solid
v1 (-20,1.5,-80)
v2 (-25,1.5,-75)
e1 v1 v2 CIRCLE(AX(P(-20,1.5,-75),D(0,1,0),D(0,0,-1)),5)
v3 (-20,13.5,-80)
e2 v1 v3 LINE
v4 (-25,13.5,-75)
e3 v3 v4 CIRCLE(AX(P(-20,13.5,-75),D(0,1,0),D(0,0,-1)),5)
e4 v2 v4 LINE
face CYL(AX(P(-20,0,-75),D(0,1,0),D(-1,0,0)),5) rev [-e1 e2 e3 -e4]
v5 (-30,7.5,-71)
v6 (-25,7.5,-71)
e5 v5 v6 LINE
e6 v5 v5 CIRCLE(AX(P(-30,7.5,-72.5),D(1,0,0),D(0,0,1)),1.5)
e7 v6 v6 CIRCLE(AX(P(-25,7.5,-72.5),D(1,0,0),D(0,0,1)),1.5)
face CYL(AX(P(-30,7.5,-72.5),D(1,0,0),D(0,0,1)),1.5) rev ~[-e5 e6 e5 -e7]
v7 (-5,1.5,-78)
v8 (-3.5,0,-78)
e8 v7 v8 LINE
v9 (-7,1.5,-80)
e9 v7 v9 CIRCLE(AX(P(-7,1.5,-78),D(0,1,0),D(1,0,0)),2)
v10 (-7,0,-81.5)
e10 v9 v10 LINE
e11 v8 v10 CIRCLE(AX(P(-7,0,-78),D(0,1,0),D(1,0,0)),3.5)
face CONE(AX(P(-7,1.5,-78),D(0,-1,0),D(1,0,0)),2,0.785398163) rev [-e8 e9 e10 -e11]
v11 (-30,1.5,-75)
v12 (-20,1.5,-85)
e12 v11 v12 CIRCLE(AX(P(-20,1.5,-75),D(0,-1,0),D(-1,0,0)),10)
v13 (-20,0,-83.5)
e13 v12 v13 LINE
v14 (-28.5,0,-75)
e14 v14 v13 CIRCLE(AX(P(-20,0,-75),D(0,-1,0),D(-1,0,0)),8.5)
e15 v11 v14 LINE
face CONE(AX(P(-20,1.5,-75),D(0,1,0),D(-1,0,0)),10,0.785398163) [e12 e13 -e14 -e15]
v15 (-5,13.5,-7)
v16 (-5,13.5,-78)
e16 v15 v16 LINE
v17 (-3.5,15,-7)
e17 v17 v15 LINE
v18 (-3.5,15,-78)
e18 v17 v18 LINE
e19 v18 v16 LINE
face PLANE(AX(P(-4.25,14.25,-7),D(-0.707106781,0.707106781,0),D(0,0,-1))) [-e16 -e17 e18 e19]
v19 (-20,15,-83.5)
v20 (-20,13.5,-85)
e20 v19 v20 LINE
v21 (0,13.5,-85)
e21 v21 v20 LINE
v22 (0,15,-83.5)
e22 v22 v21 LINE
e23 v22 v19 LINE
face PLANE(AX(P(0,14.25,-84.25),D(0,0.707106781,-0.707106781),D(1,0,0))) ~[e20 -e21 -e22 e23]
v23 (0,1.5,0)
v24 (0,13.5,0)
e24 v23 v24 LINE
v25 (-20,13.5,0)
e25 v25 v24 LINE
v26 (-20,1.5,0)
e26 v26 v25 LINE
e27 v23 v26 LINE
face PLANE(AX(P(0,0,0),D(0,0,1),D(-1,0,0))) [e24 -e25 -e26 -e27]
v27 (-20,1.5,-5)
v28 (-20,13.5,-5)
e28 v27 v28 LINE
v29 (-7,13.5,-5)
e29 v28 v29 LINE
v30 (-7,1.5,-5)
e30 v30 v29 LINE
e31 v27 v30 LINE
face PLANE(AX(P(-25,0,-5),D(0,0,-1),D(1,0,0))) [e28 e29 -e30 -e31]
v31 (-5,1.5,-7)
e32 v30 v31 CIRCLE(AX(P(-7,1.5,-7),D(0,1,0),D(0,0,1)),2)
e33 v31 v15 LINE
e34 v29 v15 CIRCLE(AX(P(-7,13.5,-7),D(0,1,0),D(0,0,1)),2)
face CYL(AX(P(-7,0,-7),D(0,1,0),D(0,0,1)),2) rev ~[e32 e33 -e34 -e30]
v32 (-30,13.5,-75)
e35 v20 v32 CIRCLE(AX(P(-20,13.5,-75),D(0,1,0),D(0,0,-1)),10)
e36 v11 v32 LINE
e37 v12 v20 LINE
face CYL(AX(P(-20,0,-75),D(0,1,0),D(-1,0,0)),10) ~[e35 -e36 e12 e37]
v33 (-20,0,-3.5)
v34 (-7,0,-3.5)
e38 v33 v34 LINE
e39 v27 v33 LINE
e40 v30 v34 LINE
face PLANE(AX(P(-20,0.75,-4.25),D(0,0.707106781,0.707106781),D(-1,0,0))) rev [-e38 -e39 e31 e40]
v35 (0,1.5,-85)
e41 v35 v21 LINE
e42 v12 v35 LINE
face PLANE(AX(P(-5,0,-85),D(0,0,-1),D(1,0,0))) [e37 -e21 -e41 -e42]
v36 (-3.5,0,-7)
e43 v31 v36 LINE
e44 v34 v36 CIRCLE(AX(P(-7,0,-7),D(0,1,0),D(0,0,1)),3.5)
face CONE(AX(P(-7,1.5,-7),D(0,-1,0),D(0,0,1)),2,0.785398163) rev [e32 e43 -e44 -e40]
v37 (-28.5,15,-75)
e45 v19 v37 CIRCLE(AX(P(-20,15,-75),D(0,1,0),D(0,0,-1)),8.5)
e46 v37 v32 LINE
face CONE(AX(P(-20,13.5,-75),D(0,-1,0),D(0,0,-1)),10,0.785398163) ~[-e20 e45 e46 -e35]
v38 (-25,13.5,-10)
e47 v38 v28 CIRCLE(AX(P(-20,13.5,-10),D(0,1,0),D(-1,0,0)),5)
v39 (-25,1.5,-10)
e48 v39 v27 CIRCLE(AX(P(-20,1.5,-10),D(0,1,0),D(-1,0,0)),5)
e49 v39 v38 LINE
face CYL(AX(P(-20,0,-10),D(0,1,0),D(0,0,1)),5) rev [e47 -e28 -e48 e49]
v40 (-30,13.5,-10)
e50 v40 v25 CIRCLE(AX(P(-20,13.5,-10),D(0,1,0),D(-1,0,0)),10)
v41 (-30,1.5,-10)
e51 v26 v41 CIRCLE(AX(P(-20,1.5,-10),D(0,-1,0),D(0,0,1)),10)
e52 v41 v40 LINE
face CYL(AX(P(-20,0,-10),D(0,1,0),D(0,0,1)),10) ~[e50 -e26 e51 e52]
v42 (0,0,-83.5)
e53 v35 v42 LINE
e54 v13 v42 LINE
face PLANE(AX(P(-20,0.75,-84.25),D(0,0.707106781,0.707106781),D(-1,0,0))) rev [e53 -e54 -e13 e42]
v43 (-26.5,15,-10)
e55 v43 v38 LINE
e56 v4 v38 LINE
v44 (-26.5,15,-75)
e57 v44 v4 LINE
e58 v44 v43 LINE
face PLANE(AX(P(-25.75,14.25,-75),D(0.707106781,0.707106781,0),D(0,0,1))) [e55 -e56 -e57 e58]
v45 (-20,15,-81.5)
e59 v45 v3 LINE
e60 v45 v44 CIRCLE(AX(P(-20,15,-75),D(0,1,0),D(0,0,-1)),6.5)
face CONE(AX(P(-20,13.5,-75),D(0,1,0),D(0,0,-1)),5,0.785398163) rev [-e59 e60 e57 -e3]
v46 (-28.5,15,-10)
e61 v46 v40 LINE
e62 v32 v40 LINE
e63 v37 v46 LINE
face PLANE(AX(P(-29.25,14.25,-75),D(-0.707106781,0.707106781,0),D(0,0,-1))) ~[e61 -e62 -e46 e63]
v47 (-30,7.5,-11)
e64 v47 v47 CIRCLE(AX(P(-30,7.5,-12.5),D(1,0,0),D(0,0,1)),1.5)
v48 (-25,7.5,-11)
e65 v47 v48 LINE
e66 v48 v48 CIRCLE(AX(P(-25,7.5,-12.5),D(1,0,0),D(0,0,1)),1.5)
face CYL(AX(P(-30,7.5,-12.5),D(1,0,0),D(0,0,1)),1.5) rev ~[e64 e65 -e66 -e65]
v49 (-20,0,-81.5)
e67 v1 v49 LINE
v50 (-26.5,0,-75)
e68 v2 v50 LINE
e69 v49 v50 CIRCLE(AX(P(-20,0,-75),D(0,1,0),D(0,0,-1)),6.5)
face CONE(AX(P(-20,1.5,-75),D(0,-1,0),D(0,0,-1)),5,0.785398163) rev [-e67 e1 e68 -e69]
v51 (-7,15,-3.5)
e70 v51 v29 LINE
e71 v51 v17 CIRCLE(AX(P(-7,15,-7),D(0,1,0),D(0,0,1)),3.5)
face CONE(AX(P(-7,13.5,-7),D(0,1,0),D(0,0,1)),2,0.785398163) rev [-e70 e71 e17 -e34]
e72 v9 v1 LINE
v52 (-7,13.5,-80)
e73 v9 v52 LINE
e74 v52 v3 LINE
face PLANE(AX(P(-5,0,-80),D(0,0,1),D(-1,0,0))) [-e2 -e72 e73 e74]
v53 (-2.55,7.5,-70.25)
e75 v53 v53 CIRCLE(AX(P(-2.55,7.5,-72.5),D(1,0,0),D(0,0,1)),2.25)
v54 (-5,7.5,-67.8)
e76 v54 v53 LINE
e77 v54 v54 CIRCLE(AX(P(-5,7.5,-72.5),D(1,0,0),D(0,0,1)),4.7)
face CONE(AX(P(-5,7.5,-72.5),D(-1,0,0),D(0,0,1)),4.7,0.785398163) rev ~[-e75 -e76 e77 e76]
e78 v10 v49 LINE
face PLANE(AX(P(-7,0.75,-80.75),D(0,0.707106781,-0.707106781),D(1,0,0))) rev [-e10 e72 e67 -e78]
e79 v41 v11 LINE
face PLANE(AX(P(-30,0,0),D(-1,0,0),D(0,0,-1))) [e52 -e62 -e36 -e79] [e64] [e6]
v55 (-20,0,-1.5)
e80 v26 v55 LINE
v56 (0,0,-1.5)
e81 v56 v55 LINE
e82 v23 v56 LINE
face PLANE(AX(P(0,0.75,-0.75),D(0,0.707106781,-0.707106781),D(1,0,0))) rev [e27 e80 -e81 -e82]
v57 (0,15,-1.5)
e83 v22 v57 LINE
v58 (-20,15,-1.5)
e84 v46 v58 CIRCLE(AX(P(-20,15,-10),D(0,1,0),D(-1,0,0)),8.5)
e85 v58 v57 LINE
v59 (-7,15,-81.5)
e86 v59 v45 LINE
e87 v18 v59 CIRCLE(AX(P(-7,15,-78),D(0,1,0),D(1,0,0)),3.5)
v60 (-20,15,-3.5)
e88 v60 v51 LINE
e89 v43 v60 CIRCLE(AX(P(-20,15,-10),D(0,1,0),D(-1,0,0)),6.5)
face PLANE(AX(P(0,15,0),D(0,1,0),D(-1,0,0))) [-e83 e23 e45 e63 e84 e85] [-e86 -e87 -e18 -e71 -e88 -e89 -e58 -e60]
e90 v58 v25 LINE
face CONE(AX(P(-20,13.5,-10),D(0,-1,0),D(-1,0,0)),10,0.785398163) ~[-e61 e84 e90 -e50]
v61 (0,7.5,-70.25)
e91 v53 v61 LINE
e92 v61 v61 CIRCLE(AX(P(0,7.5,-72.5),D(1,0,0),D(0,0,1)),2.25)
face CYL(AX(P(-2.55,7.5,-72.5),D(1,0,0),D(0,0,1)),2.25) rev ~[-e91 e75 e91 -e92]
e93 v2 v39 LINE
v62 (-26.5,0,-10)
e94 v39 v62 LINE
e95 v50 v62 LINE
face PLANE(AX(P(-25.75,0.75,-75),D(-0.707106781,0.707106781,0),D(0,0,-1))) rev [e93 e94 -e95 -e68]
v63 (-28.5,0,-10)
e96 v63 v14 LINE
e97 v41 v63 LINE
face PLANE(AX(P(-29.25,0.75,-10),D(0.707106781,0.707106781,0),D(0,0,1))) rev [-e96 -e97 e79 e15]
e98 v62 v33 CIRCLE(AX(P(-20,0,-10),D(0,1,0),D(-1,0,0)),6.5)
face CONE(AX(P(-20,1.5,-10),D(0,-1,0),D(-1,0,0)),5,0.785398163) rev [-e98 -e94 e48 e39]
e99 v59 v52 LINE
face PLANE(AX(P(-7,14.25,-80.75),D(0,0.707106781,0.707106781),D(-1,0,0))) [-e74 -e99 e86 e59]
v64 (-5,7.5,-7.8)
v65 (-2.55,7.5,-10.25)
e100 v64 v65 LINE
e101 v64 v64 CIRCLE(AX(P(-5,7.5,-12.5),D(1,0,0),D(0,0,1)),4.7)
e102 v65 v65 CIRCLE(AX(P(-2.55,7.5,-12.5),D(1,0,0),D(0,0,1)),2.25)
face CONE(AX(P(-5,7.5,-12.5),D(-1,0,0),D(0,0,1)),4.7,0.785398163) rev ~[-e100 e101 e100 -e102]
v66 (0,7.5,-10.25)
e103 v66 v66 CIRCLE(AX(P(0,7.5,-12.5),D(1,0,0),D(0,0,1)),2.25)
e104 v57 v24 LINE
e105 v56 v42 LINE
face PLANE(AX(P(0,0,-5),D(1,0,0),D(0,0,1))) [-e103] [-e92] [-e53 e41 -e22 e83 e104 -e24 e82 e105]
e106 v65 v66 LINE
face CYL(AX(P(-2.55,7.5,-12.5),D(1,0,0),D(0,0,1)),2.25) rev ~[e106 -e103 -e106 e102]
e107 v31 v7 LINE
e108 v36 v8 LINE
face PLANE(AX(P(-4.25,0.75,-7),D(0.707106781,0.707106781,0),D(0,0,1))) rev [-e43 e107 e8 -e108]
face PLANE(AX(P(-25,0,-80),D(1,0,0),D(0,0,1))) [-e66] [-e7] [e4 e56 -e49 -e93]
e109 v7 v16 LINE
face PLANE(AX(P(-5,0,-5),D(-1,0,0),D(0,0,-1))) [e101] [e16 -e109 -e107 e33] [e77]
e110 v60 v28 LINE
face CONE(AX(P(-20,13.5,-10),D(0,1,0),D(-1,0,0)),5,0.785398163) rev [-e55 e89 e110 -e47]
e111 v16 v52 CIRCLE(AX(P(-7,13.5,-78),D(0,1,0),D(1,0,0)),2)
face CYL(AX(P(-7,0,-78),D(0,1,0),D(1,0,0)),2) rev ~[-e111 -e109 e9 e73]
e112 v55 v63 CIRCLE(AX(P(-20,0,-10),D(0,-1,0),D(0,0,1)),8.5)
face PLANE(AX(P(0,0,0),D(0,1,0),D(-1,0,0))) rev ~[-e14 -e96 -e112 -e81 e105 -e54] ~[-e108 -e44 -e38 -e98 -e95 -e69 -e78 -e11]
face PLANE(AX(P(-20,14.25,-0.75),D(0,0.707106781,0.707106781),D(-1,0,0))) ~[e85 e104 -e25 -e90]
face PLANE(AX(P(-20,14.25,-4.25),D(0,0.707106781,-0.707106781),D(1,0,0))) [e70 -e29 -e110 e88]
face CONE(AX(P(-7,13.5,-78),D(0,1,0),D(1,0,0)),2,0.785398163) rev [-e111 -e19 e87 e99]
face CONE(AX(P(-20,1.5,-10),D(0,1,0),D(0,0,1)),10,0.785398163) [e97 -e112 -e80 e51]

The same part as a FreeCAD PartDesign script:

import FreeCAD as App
import Part
import Sketcher

V = App.Vector


def edges_at(feature, points):
    """Names of the edges that pass closest to the given points."""
    edges = feature.Shape.Edges
    near = lambda p: min(range(len(edges)), key=lambda i: edges[i].distToShape(Part.Vertex(*p))[0])
    return sorted({f"Edge{near(p) + 1}" for p in points})

doc = App.newDocument("Part")
params = doc.addObject("Spreadsheet::Sheet", "Params")
for row, (alias, value) in enumerate([
    ("sketch1_width", "30 mm"),
    ("sketch1_height", "85 mm"),
    ("pad1_length", "15 mm"),
    ("fillet_radius", "10 mm"),
    ("fillet2_radius", "5 mm"),
    ("fillet3_radius", "2 mm"),
    ("sketch2_diameter", "4.5 mm"),
    ("hole_diameter", "4.5 mm"),
    ("hole_depth", "5 mm"),
    ("hole_csink_diameter", "9.4 mm"),
    ("sketch3_diameter", "3 mm"),
    ("hole2_diameter", "3 mm"),
    ("hole2_depth", "25 mm"),
    ("chamfer_size", "1.5 mm"),
    ("chamfer2_size", "1.5 mm"),
], start=1):
    params.set(f"A{row}", alias)
    params.set(f"B{row}", "=" + value)
    params.setAlias(f"B{row}", alias)

body = doc.addObject("PartDesign::Body", "Body")

sketch1 = body.newObject("Sketcher::SketchObject", "Sketch")
sketch1.AttachmentSupport = (doc.getObject("XZ_Plane"), [""])
sketch1.MapMode = "FlatFace"
sketch1.addGeometry([
    Part.LineSegment(V(0, 0, 0), V(0, -85, 0)),
    Part.LineSegment(V(0, -85, 0), V(-30, -85, 0)),
    Part.LineSegment(V(-30, -85, 0), V(-30, 0, 0)),
    Part.LineSegment(V(-30, 0, 0), V(0, 0, 0)),
    Part.LineSegment(V(-5, -5, 0), V(-25, -5, 0)),
    Part.LineSegment(V(-25, -5, 0), V(-25, -80, 0)),
    Part.LineSegment(V(-25, -80, 0), V(-5, -80, 0)),
    Part.LineSegment(V(-5, -80, 0), V(-5, -5, 0)),
], False)
sketch1.addConstraint([
    Sketcher.Constraint("Coincident", 0, 2, 1, 1),
    Sketcher.Constraint("Coincident", 1, 2, 2, 1),
    Sketcher.Constraint("Coincident", 2, 2, 3, 1),
    Sketcher.Constraint("Coincident", 3, 2, 0, 1),
    Sketcher.Constraint("Coincident", 4, 2, 5, 1),
    Sketcher.Constraint("Coincident", 5, 2, 6, 1),
    Sketcher.Constraint("Coincident", 6, 2, 7, 1),
    Sketcher.Constraint("Coincident", 7, 2, 4, 1),
    Sketcher.Constraint("Vertical", 0),
    Sketcher.Constraint("Horizontal", 1),
    Sketcher.Constraint("Vertical", 2),
    Sketcher.Constraint("Horizontal", 3),
    Sketcher.Constraint("Horizontal", 4),
    Sketcher.Constraint("Vertical", 5),
    Sketcher.Constraint("Horizontal", 6),
    Sketcher.Constraint("Vertical", 7),
    Sketcher.Constraint("Coincident", 3, 2, -1, 1),
    Sketcher.Constraint("DistanceX", 1, 2, 1, 1, 30.0),
    Sketcher.Constraint("DistanceY", 0, 2, 0, 1, 85.0),
    Sketcher.Constraint("DistanceX", 4, 2, -1, 1, 25.0),
    Sketcher.Constraint("DistanceY", 4, 2, -1, 1, 5.0),
    Sketcher.Constraint("DistanceX", 6, 2, -1, 1, 5.0),
    Sketcher.Constraint("DistanceY", 1, 2, 5, 2, 5.0),
])
sketch1.setExpression("Constraints[17]", "Params.sketch1_width")
sketch1.setExpression("Constraints[18]", "Params.sketch1_height")
pad1 = body.newObject("PartDesign::Pad", "Pad")
pad1.Profile = sketch1
pad1.setExpression("Length", "Params.pad1_length")
pad1.Reversed = True
doc.recompute()

fillet = body.newObject("PartDesign::Fillet", "Fillet")
fillet.Base = (pad1, edges_at(pad1, [(-30, 7.5, 0), (-30, 7.5, -85)]))
fillet.setExpression("Radius", "Params.fillet_radius")
doc.recompute()

fillet2 = body.newObject("PartDesign::Fillet", "Fillet001")
fillet2.Base = (fillet, edges_at(fillet, [(-25, 7.5, -5), (-25, 7.5, -80)]))
fillet2.setExpression("Radius", "Params.fillet2_radius")
doc.recompute()

fillet3 = body.newObject("PartDesign::Fillet", "Fillet002")
fillet3.Base = (fillet2, edges_at(fillet2, [(-5, 7.5, -5), (-5, 7.5, -80)]))
fillet3.setExpression("Radius", "Params.fillet3_radius")

sketch2 = body.newObject("Sketcher::SketchObject", "Sketch001")
sketch2.AttachmentSupport = (doc.getObject("YZ_Plane"), [""])
sketch2.MapMode = "FlatFace"
sketch2.AttachmentOffset = App.Placement(V(0, 0, -5), App.Rotation())
sketch2.addGeometry([
    Part.Circle(V(7.5, -12.5, 0), V(0, 0, 1), 2.25),
    Part.Circle(V(7.5, -72.5, 0), V(0, 0, 1), 2.25),
], False)
sketch2.addConstraint([
    Sketcher.Constraint("Equal", 0, 1),
    Sketcher.Constraint("Vertical", 0, 3, 1, 3),
    Sketcher.Constraint("Diameter", 0, 4.5),
    Sketcher.Constraint("DistanceY", 1, 3, 0, 3, 60.0),
    Sketcher.Constraint("DistanceX", -1, 1, 0, 3, 7.5),
    Sketcher.Constraint("DistanceY", 0, 3, -1, 1, 12.5),
])
sketch2.setExpression("Constraints[2]", "Params.sketch2_diameter")
doc.recompute()
hole = body.newObject("PartDesign::Hole", "Hole")
hole.Profile = sketch2
hole.ThreadType = "None"
hole.setExpression("Diameter", "Params.hole_diameter")
hole.DepthType = "Dimension"
hole.setExpression("Depth", "Params.hole_depth")
hole.DrillPoint = "Flat"
hole.HoleCutType = "Countersink"
hole.setExpression("HoleCutDiameter", "Params.hole_csink_diameter")
hole.HoleCutCountersinkAngle = 90
hole.Reversed = True

sketch3 = body.newObject("Sketcher::SketchObject", "Sketch002")
sketch3.AttachmentSupport = (doc.getObject("YZ_Plane"), [""])
sketch3.MapMode = "FlatFace"
sketch3.AttachmentOffset = App.Placement(V(0, 0, -30), App.Rotation())
sketch3.addGeometry([
    Part.Circle(V(7.5, -72.5, 0), V(0, 0, 1), 1.5),
    Part.Circle(V(7.5, -12.5, 0), V(0, 0, 1), 1.5),
], False)
sketch3.addConstraint([
    Sketcher.Constraint("Equal", 0, 1),
    Sketcher.Constraint("Vertical", 0, 3, 1, 3),
    Sketcher.Constraint("Diameter", 0, 3.0),
    Sketcher.Constraint("DistanceY", 0, 3, 1, 3, 60.0),
    Sketcher.Constraint("DistanceX", -1, 1, 0, 3, 7.5),
    Sketcher.Constraint("DistanceY", 0, 3, -1, 1, 72.5),
])
sketch3.setExpression("Constraints[2]", "Params.sketch3_diameter")
doc.recompute()
hole2 = body.newObject("PartDesign::Hole", "Hole001")
hole2.Profile = sketch3
hole2.ThreadType = "None"
hole2.setExpression("Diameter", "Params.hole2_diameter")
hole2.DepthType = "Dimension"
hole2.setExpression("Depth", "Params.hole2_depth")
hole2.DrillPoint = "Flat"
hole2.Reversed = True
doc.recompute()

chamfer = body.newObject("PartDesign::Chamfer", "Chamfer")
chamfer.Base = (hole2, edges_at(hole2, [
    (-5, 0, -42.5),
    (-13.5, 0, -5),
    (-25, 0, -42.5),
    (-13.5, 0, -80),
    (-5, 15, -42.5),
    (-13.5, 15, -5),
    (-25, 15, -42.5),
    (-13.5, 15, -80),
]))
chamfer.setExpression("Size", "Params.chamfer_size")
doc.recompute()

chamfer2 = body.newObject("PartDesign::Chamfer", "Chamfer001")
chamfer2.Base = (chamfer, edges_at(chamfer, [
    (-30, 0, -42.5),
    (-27.071, 0, -2.929),
    (-10, 0, 0),
    (-27.071, 0, -82.071),
    (-10, 0, -85),
    (-30, 15, -42.5),
    (-27.071, 15, -2.929),
    (-10, 15, 0),
    (-27.071, 15, -82.071),
    (-10, 15, -85),
]))
chamfer2.setExpression("Size", "Params.chamfer2_size")

doc.recompute()
